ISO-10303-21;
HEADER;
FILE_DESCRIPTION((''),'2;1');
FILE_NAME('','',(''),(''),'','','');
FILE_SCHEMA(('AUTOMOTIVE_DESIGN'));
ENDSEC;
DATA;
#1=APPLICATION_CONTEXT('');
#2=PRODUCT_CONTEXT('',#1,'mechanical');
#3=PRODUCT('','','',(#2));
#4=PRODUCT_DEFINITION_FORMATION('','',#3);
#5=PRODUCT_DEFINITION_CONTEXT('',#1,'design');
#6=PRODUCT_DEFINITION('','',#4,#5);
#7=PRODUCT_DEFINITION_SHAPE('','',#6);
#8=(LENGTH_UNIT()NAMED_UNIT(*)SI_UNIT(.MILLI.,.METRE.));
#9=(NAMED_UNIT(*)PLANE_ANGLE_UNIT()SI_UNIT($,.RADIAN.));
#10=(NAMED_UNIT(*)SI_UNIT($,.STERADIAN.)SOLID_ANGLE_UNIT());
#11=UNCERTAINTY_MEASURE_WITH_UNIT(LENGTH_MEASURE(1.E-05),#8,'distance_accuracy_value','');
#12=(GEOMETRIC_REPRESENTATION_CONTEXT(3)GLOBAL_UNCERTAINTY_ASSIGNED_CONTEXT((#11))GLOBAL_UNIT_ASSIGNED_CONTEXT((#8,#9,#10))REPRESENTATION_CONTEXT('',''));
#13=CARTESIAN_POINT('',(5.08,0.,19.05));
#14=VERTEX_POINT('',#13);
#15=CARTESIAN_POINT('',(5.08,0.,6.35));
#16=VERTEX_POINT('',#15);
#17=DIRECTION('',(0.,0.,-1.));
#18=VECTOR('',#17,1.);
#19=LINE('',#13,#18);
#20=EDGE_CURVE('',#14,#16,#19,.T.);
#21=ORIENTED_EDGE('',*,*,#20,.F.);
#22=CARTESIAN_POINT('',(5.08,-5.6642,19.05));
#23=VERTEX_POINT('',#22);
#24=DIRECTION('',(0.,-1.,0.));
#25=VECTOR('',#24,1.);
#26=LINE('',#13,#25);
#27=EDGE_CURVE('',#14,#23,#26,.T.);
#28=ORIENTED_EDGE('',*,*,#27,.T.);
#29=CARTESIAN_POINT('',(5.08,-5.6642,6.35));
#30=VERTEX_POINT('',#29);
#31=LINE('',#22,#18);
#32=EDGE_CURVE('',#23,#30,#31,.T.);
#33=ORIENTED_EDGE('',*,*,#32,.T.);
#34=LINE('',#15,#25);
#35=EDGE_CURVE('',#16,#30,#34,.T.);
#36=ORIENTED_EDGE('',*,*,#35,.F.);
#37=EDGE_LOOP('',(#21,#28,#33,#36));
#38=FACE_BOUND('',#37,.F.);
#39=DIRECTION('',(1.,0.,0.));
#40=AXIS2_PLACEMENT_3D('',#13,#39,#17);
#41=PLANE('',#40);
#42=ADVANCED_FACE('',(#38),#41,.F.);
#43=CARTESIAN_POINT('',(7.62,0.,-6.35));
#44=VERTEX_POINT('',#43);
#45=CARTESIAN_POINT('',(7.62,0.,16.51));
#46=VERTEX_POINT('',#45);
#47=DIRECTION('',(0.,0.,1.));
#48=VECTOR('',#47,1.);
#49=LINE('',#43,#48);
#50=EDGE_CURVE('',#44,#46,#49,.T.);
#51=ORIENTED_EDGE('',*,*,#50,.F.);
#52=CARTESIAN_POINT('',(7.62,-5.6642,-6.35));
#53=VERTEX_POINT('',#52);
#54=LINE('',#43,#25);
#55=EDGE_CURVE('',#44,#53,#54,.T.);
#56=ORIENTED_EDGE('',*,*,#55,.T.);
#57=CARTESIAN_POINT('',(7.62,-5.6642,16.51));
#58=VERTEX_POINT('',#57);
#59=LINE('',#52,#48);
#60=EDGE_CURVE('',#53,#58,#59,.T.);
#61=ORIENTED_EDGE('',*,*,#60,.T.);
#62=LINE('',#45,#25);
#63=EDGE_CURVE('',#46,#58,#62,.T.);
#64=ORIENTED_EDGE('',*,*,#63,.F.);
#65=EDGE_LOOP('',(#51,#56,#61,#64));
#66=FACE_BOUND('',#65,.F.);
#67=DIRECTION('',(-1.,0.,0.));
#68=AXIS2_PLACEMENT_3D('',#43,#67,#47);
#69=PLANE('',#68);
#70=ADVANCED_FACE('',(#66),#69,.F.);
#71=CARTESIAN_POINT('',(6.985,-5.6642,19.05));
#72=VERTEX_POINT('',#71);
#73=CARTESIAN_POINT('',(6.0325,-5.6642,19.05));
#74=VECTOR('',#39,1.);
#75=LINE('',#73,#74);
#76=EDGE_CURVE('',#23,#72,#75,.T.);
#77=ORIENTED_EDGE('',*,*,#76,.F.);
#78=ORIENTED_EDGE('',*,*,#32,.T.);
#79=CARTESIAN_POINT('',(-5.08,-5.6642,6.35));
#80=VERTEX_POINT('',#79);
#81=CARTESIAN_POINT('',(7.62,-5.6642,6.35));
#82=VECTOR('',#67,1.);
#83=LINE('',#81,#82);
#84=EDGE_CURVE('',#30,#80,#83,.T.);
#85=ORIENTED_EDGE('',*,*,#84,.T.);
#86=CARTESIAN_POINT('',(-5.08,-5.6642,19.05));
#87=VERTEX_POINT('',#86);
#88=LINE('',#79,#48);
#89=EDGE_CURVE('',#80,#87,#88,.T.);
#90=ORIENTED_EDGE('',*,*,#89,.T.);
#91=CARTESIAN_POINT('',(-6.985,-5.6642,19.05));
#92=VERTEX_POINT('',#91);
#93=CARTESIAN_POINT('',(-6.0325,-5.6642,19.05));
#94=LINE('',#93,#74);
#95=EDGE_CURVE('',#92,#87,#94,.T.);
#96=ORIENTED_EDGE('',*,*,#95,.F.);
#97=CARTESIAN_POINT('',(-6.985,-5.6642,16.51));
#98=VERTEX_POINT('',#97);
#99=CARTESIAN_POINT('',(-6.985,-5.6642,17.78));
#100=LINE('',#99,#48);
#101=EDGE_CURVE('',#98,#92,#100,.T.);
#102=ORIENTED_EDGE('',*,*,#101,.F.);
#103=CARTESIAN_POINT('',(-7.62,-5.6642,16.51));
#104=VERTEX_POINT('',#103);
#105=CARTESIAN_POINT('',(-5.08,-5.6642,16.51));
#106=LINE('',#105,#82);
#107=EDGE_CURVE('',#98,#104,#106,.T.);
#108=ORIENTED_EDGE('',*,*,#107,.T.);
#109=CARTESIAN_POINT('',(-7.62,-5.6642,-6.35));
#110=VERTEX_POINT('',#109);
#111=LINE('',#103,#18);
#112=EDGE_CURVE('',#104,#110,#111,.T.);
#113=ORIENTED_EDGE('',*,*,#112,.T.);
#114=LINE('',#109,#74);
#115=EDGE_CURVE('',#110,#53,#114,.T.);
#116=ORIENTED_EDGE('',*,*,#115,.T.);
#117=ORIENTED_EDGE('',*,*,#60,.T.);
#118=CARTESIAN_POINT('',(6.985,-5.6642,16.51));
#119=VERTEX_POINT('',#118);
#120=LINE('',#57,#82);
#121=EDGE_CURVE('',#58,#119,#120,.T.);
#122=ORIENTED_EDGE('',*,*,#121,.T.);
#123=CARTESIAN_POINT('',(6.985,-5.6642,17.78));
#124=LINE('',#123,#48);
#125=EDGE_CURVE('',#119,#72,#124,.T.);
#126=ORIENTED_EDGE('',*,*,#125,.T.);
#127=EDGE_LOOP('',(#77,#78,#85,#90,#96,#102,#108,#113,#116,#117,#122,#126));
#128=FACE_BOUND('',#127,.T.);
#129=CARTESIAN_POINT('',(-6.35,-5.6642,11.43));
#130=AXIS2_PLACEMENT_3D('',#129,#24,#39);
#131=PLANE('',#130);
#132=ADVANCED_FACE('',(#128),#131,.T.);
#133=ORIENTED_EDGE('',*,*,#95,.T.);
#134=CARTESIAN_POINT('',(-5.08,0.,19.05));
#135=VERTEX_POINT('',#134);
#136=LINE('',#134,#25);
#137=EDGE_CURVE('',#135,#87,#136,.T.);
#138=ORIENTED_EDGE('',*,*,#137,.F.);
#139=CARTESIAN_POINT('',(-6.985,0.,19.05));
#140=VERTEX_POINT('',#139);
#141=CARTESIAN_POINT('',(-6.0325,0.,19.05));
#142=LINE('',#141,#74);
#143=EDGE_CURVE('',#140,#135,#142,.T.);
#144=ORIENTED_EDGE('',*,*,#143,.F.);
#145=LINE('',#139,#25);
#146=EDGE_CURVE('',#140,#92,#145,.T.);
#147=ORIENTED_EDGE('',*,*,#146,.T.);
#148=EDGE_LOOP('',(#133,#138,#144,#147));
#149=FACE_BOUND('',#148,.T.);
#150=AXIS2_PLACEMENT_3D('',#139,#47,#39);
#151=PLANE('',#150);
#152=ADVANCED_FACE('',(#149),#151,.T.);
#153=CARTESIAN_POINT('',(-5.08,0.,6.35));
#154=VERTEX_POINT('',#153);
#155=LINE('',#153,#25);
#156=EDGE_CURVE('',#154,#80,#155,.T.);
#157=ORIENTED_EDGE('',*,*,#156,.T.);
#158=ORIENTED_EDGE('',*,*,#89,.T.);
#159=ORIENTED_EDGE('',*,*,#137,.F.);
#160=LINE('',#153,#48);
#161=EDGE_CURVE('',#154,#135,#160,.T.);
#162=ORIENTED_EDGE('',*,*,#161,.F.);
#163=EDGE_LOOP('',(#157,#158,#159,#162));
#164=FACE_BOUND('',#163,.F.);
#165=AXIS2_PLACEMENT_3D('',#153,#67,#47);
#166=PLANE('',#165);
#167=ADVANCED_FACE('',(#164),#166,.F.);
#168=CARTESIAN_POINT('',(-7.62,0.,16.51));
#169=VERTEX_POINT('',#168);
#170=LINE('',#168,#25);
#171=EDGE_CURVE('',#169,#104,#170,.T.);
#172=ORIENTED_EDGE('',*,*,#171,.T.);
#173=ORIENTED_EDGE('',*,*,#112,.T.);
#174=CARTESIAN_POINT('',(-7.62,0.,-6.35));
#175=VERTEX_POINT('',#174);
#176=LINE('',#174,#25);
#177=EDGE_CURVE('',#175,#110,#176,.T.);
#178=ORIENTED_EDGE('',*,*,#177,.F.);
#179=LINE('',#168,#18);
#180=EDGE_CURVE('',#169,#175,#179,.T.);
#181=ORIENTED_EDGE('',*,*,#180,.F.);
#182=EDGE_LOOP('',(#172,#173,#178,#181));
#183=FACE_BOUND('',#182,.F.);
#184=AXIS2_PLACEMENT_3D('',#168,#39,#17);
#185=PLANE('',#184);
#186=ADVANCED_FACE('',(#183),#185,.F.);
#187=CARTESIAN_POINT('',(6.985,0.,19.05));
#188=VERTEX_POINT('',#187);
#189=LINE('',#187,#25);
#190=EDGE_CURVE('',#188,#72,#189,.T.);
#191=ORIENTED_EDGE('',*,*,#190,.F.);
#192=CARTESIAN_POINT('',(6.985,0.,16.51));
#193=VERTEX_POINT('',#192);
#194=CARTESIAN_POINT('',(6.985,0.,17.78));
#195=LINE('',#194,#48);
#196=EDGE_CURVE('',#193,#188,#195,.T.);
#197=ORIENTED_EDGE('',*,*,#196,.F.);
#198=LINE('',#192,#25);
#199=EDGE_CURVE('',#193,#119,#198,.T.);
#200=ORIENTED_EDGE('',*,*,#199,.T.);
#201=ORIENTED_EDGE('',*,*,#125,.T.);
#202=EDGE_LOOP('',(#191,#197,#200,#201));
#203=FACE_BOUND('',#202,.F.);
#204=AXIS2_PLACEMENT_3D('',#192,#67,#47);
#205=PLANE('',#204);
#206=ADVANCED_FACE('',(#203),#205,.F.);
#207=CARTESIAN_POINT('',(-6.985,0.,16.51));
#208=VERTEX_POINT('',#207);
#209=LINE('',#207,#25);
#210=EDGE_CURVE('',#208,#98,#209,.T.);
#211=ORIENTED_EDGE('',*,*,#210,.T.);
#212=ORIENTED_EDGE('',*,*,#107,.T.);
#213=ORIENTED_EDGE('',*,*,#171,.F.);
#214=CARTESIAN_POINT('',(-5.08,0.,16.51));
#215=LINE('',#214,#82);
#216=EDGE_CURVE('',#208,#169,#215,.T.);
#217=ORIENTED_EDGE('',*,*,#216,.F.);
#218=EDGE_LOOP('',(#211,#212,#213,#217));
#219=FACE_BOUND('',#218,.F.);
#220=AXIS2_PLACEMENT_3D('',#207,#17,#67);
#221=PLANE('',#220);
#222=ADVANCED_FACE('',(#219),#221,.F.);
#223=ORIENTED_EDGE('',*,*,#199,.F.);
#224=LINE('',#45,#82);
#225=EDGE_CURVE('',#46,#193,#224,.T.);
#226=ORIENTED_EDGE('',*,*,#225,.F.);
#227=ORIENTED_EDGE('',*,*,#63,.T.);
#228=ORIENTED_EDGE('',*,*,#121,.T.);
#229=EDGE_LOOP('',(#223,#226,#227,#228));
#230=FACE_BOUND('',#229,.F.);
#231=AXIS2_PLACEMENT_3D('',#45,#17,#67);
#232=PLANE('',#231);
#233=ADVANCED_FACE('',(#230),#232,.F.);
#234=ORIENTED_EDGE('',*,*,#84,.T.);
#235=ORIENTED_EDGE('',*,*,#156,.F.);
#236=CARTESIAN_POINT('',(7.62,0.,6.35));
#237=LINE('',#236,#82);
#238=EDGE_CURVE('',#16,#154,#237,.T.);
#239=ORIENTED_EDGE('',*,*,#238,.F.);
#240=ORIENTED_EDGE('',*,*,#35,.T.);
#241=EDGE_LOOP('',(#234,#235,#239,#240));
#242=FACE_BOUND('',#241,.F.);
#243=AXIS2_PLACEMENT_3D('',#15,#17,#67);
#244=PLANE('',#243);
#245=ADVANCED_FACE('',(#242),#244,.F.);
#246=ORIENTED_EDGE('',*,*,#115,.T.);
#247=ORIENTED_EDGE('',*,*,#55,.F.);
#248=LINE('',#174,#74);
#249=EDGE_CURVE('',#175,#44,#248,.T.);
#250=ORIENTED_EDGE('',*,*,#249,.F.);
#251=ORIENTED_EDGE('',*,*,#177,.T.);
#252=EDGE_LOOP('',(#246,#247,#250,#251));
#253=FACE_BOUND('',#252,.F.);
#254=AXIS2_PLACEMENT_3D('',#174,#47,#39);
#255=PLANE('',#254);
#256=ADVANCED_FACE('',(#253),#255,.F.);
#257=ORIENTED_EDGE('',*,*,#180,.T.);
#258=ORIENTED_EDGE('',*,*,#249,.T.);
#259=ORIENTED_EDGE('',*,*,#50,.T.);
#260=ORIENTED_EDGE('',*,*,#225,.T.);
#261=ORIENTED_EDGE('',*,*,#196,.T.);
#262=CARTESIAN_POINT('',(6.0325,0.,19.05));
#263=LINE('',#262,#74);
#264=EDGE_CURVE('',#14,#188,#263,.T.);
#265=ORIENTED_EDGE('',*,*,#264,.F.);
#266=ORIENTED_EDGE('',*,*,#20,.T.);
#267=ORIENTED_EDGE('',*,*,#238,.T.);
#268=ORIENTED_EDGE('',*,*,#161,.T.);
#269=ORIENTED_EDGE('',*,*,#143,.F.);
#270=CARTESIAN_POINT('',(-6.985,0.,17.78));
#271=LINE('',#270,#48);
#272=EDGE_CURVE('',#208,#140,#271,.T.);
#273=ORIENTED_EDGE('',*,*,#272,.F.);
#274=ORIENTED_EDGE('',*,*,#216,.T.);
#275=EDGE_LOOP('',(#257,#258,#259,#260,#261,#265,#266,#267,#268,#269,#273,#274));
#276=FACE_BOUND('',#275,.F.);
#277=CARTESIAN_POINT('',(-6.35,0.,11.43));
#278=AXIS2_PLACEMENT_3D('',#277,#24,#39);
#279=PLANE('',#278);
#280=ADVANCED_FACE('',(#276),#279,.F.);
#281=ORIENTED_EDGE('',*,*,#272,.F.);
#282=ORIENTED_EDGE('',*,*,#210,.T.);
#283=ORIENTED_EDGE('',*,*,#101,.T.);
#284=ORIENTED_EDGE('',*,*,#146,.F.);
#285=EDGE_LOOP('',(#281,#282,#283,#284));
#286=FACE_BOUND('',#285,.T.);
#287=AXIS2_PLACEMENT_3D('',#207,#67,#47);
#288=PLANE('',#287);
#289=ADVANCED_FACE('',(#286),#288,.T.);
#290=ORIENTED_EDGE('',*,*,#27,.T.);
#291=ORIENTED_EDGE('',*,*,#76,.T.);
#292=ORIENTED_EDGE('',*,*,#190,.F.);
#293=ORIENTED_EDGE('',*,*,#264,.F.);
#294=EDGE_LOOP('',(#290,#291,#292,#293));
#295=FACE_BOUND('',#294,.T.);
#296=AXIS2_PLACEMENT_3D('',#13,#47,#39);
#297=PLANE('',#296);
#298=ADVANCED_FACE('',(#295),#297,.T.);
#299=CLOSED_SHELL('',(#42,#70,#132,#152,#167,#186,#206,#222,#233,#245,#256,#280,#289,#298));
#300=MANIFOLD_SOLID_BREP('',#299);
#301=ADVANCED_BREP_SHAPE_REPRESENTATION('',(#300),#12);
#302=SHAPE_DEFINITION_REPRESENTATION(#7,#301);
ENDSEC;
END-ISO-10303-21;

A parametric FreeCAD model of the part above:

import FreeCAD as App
import Part
import Sketcher

V = App.Vector
Q = App.Units.Quantity

doc = App.newDocument("Part")
body = doc.addObject("PartDesign::Body", "Body")

# Sketch on XZ plane
sketch1 = body.newObject("Sketcher::SketchObject", "Sketch")
sketch1.AttachmentSupport = (doc.getObject("XZ_Plane"), [""])
sketch1.MapMode = "FlatFace"
sketch1.addGeometry(Part.LineSegment(V(-7.6, 16.5, 0), V(-7.6, -6.3, 0)), False)
sketch1.addGeometry(Part.LineSegment(V(-7.6, -6.3, 0), V(7.6, -6.3, 0)), False)
sketch1.addGeometry(Part.LineSegment(V(7.6, -6.3, 0), V(7.6, 16.5, 0)), False)
sketch1.addGeometry(Part.LineSegment(V(7.6, 16.5, 0), V(7, 16.5, 0)), False)
sketch1.addGeometry(Part.LineSegment(V(7, 16.5, 0), V(7, 19.1, 0)), False)
sketch1.addGeometry(Part.LineSegment(V(7, 19.1, 0), V(5.1, 19.1, 0)), False)
sketch1.addGeometry(Part.LineSegment(V(5.1, 19.1, 0), V(5.1, 6.3, 0)), False)
sketch1.addGeometry(Part.LineSegment(V(5.1, 6.3, 0), V(-5.1, 6.3, 0)), False)
sketch1.addGeometry(Part.LineSegment(V(-5.1, 6.3, 0), V(-5.1, 19.1, 0)), False)
sketch1.addGeometry(Part.LineSegment(V(-5.1, 19.1, 0), V(-7, 19.1, 0)), False)
sketch1.addGeometry(Part.LineSegment(V(-7, 19.1, 0), V(-7, 16.5, 0)), False)
sketch1.addGeometry(Part.LineSegment(V(-7, 16.5, 0), V(-7.6, 16.5, 0)), False)
sketch1.addConstraint(Sketcher.Constraint("Coincident", 0, 2, 1, 1))
sketch1.addConstraint(Sketcher.Constraint("Coincident", 1, 2, 2, 1))
sketch1.addConstraint(Sketcher.Constraint("Coincident", 2, 2, 3, 1))
sketch1.addConstraint(Sketcher.Constraint("Coincident", 3, 2, 4, 1))
sketch1.addConstraint(Sketcher.Constraint("Coincident", 4, 2, 5, 1))
sketch1.addConstraint(Sketcher.Constraint("Coincident", 5, 2, 6, 1))
sketch1.addConstraint(Sketcher.Constraint("Coincident", 6, 2, 7, 1))
sketch1.addConstraint(Sketcher.Constraint("Coincident", 7, 2, 8, 1))
sketch1.addConstraint(Sketcher.Constraint("Coincident", 8, 2, 9, 1))
sketch1.addConstraint(Sketcher.Constraint("Coincident", 9, 2, 10, 1))
sketch1.addConstraint(Sketcher.Constraint("Coincident", 10, 2, 11, 1))
sketch1.addConstraint(Sketcher.Constraint("Coincident", 11, 2, 0, 1))
sketch1.addConstraint(Sketcher.Constraint("Vertical", 0))
sketch1.addConstraint(Sketcher.Constraint("Horizontal", 1))
sketch1.addConstraint(Sketcher.Constraint("Vertical", 2))
sketch1.addConstraint(Sketcher.Constraint("Horizontal", 3))
sketch1.addConstraint(Sketcher.Constraint("Vertical", 4))
sketch1.addConstraint(Sketcher.Constraint("Horizontal", 5))
sketch1.addConstraint(Sketcher.Constraint("Vertical", 6))
sketch1.addConstraint(Sketcher.Constraint("Horizontal", 7))
sketch1.addConstraint(Sketcher.Constraint("Vertical", 8))
sketch1.addConstraint(Sketcher.Constraint("Horizontal", 9))
sketch1.addConstraint(Sketcher.Constraint("Vertical", 10))
sketch1.addConstraint(Sketcher.Constraint("Horizontal", 11))
sketch1.addConstraint(Sketcher.Constraint("Symmetric", 5, 2, 8, 2, -2))
sketch1.addConstraint(Sketcher.Constraint("Symmetric", 3, 2, 10, 2, -2))
sketch1.addConstraint(Sketcher.Constraint("Equal", 3, 11))
sketch1.addConstraint(Sketcher.Constraint("DistanceX", 1, 1, 1, 2, Q("0.6 in")))
sketch1.addConstraint(Sketcher.Constraint("DistanceX", 7, 2, 7, 1, Q("0.4 in")))
sketch1.addConstraint(Sketcher.Constraint("DistanceY", 0, 2, 0, 1, Q("0.9 in")))
sketch1.addConstraint(Sketcher.Constraint("DistanceY", 4, 1, 4, 2, Q("0.1 in")))
sketch1.addConstraint(Sketcher.Constraint("DistanceY", 6, 2, 6, 1, Q("0.5 in")))
sketch1.addConstraint(Sketcher.Constraint("DistanceX", 3, 2, 3, 1, Q("0.025 in")))
sketch1.addConstraint(Sketcher.Constraint("DistanceY", 0, 2, -1, 1, Q("0.25 in")))
pad1 = body.newObject("PartDesign::Pad", "Pad")
pad1.Profile = sketch1
pad1.Length = Q("0.223 in")

doc.recompute()
